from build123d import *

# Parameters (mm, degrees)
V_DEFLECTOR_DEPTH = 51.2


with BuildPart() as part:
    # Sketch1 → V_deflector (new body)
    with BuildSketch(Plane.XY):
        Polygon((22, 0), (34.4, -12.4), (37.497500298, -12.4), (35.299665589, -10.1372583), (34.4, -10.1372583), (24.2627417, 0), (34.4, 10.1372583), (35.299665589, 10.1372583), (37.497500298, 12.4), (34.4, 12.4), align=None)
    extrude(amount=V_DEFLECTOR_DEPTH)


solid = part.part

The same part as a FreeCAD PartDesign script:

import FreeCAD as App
import Part
import Sketcher
Q = App.Units.Quantity

doc = App.newDocument("Part")
body = doc.addObject("PartDesign::Body", "Body")

sketch1 = doc.addObject("Sketcher::SketchObject", "Sketch")
body.addObject(sketch1)
sketch1.AttachmentSupport = (doc.XY_Plane, [""])
sketch1.MapMode = "FlatFace"
sketch1.addGeometry(Part.LineSegment(App.Vector(22, 0, 0), App.Vector(34.4, -12.4, 0)), False)
sketch1.addGeometry(Part.LineSegment(App.Vector(34.4, -12.4, 0), App.Vector(37.4975, -12.4, 0)), False)
sketch1.addGeometry(Part.LineSegment(App.Vector(37.4975, -12.4, 0), App.Vector(35.299666, -10.137258, 0)), False)
sketch1.addGeometry(Part.LineSegment(App.Vector(35.299666, -10.137258, 0), App.Vector(34.4, -10.137258, 0)), False)
sketch1.addGeometry(Part.LineSegment(App.Vector(34.4, -10.137258, 0), App.Vector(24.262742, 0, 0)), False)
sketch1.addGeometry(Part.LineSegment(App.Vector(24.262742, 0, 0), App.Vector(34.4, 10.137258, 0)), False)
sketch1.addGeometry(Part.LineSegment(App.Vector(34.4, 10.137258, 0), App.Vector(35.299666, 10.137258, 0)), False)
sketch1.addGeometry(Part.LineSegment(App.Vector(35.299666, 10.137258, 0), App.Vector(37.4975, 12.4, 0)), False)
sketch1.addGeometry(Part.LineSegment(App.Vector(37.4975, 12.4, 0), App.Vector(34.4, 12.4, 0)), False)
sketch1.addGeometry(Part.LineSegment(App.Vector(34.4, 12.4, 0), App.Vector(22, 0, 0)), False)
sketch1.addConstraint(Sketcher.Constraint("Coincident", 0, 2, 1, 1))
sketch1.addConstraint(Sketcher.Constraint("Coincident", 1, 2, 2, 1))
sketch1.addConstraint(Sketcher.Constraint("Coincident", 2, 2, 3, 1))
sketch1.addConstraint(Sketcher.Constraint("Coincident", 3, 2, 4, 1))
sketch1.addConstraint(Sketcher.Constraint("Coincident", 4, 2, 5, 1))
sketch1.addConstraint(Sketcher.Constraint("Coincident", 5, 2, 6, 1))
sketch1.addConstraint(Sketcher.Constraint("Coincident", 6, 2, 7, 1))
sketch1.addConstraint(Sketcher.Constraint("Coincident", 7, 2, 8, 1))
sketch1.addConstraint(Sketcher.Constraint("Coincident", 8, 2, 9, 1))
sketch1.addConstraint(Sketcher.Constraint("Coincident", 9, 2, 0, 1))
sketch1.addConstraint(Sketcher.Constraint("Horizontal", 1))
sketch1.addConstraint(Sketcher.Constraint("Horizontal", 3))
sketch1.addConstraint(Sketcher.Constraint("Horizontal", 6))
sketch1.addConstraint(Sketcher.Constraint("Horizontal", 8))
sketch1.addConstraint(Sketcher.Constraint("Symmetric", 3, 2, 5, 2, -1))
sketch1.addConstraint(Sketcher.Constraint("Symmetric", 1, 2, 7, 2, -1))
sketch1.addConstraint(Sketcher.Constraint("PointOnObject", 4, 2, -1))
sketch1.addConstraint(Sketcher.Constraint("PointOnObject", 9, 2, -1))
sketch1.addConstraint(Sketcher.Constraint("Parallel", 0, 4))
sketch1.addConstraint(Sketcher.Constraint("Perpendicular", 4, 5))
sketch1.addConstraint(Sketcher.Constraint("Parallel", 5, 9))
sketch1.addConstraint(Sketcher.Constraint("Vertical", 0, 2, 3, 2))
sketch1.addConstraint(Sketcher.Constraint("Vertical", 2, 2, 6, 2))
sketch1.addConstraint(Sketcher.Constraint("DistanceX", -1, 1, 9, 2, Q("22 mm")))
sketch1.addConstraint(Sketcher.Constraint("DistanceX", -1, 1, 0, 2, Q("34.4 mm")))
sketch1.addConstraint(Sketcher.Constraint("DistanceX", 1, 1, 1, 2, Q("3.0975 mm")))
sketch1.addConstraint(Sketcher.Constraint("Distance", 4, Q("14.336248 mm")))
sketch1.addConstraint(Sketcher.Constraint("DistanceX", 3, 2, 3, 1, Q("0.899666 mm")))
pad1 = doc.addObject("PartDesign::Pad", "Pad")
body.addObject(pad1)
pad1.Profile = sketch1
pad1.Length = 51.2

doc.recompute()
